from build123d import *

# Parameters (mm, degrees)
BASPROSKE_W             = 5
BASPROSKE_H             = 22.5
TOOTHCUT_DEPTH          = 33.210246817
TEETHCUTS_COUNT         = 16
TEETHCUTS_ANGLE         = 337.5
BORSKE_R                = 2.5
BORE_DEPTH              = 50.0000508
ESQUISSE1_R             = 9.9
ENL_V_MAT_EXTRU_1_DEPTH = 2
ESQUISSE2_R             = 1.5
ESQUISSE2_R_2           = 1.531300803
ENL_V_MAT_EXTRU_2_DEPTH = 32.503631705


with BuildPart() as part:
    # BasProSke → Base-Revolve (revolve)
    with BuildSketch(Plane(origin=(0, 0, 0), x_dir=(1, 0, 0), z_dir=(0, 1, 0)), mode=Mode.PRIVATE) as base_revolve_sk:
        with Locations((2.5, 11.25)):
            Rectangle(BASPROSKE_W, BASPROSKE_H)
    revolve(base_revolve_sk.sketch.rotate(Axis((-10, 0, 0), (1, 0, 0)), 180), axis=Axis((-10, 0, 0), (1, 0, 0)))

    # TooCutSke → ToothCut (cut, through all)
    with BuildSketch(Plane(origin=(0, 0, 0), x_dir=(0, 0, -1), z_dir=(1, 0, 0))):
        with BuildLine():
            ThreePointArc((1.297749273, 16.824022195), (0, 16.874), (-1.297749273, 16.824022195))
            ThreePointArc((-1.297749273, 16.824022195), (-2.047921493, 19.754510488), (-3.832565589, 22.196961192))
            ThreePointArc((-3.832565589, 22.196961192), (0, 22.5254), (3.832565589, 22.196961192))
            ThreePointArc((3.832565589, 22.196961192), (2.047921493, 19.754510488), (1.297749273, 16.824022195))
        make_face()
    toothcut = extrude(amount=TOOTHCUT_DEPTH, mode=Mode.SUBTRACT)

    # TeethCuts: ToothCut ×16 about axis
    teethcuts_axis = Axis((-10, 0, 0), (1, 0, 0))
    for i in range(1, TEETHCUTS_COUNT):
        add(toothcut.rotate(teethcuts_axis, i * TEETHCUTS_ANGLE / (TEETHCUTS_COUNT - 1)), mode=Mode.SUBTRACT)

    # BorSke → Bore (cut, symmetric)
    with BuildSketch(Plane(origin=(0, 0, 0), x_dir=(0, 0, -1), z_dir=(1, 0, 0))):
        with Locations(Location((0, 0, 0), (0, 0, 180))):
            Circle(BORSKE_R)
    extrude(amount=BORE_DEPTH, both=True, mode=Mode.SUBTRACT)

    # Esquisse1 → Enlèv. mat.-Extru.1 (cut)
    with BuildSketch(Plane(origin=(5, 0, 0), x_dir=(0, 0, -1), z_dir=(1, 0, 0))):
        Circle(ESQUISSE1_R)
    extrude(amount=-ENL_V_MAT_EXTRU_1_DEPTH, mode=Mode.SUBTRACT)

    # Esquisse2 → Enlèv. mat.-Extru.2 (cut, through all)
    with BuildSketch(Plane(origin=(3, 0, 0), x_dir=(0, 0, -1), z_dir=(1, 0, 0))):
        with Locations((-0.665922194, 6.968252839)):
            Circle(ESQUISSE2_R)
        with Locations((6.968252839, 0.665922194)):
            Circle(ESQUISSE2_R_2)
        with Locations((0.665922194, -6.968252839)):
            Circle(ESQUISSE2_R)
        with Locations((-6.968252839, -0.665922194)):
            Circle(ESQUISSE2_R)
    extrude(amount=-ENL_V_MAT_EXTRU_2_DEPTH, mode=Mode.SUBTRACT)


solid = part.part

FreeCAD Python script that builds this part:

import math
import FreeCAD as App
import Part
import Sketcher

V = App.Vector
Q = App.Units.Quantity

doc = App.newDocument("Part")
body = doc.addObject("PartDesign::Body", "Body")

# Sketch on XZ plane
sketch1 = body.newObject("Sketcher::SketchObject", "Sketch")
sketch1.AttachmentSupport = (doc.getObject("XZ_Plane"), [""])
sketch1.MapMode = "FlatFace"
sketch1.addGeometry(Part.LineSegment(V(0, -22.5, 0), V(0, 0, 0)), False)
sketch1.addGeometry(Part.LineSegment(V(0, 0, 0), V(5, 0, 0)), False)
sketch1.addGeometry(Part.LineSegment(V(5, 0, 0), V(5, -22.5, 0)), False)
sketch1.addGeometry(Part.LineSegment(V(5, -22.5, 0), V(0, -22.5, 0)), False)
sketch1.addConstraint(Sketcher.Constraint("Coincident", 0, 2, 1, 1))
sketch1.addConstraint(Sketcher.Constraint("Coincident", 1, 2, 2, 1))
sketch1.addConstraint(Sketcher.Constraint("Coincident", 2, 2, 3, 1))
sketch1.addConstraint(Sketcher.Constraint("Coincident", 3, 2, 0, 1))
sketch1.addConstraint(Sketcher.Constraint("Vertical", 0))
sketch1.addConstraint(Sketcher.Constraint("Horizontal", 1))
sketch1.addConstraint(Sketcher.Constraint("Vertical", 2))
sketch1.addConstraint(Sketcher.Constraint("Horizontal", 3))
sketch1.addConstraint(Sketcher.Constraint("Coincident", 0, 2, -1, 1))
sketch1.addConstraint(Sketcher.Constraint("DistanceX", 1, 1, 1, 2, Q("5 mm")))
sketch1.addConstraint(Sketcher.Constraint("DistanceY", 0, 1, 0, 2, Q("22.5 mm")))
revolution = body.newObject("PartDesign::Revolution", "Revolution")
revolution.Profile = sketch1
revolution.ReferenceAxis = (sketch1, ["H_Axis"])
revolution.Angle = 360

# Sketch on YZ plane
sketch2 = body.newObject("Sketcher::SketchObject", "Sketch001")
sketch2.AttachmentSupport = (doc.getObject("YZ_Plane"), [""])
sketch2.MapMode = "FlatFace"
sketch2.addGeometry(Part.ArcOfCircle(Part.Circle(V(0, 0, 0), V(0, 0, 1), 16.874), math.radians(-4.410872), math.radians(4.410872)), False)
sketch2.addGeometry(Part.ArcOfCircle(Part.Circle(V(16.341108, -9.283161, 0), V(0, 0, 1), 8), math.radians(42.947221), math.radians(86.53928)), False)
sketch2.addGeometry(Part.ArcOfCircle(Part.Circle(V(0, 0, 0), V(0, 0, 1), 22.5254), math.radians(-9.796202), math.radians(9.796202)), False)
sketch2.addGeometry(Part.ArcOfCircle(Part.Circle(V(16.341108, 9.283161, 0), V(0, 0, 1), 8), math.radians(-86.53928), math.radians(-42.947221)), False)
sketch2.addConstraint(Sketcher.Constraint("Coincident", 0, 1, 1, 2))
sketch2.addConstraint(Sketcher.Constraint("Coincident", 1, 1, 2, 1))
sketch2.addConstraint(Sketcher.Constraint("Coincident", 2, 2, 3, 2))
sketch2.addConstraint(Sketcher.Constraint("Coincident", 3, 1, 0, 2))
sketch2.addConstraint(Sketcher.Constraint("Coincident", 0, 3, -1, 1))
sketch2.addConstraint(Sketcher.Constraint("Coincident", 2, 3, -1, 1))
sketch2.addConstraint(Sketcher.Constraint("Equal", 1, 3))
sketch2.addConstraint(Sketcher.Constraint("Symmetric", 1, 3, 3, 3, -1))
sketch2.addConstraint(Sketcher.Constraint("Radius", 1, Q("8 mm")))
sketch2.addConstraint(Sketcher.Constraint("Radius", 0, Q("16.874 mm")))
sketch2.addConstraint(Sketcher.Constraint("Radius", 2, Q("22.5254 mm")))
sketch2.addConstraint(Sketcher.Constraint("DistanceY", 0, 1, 3, 1, Q("2.595499 mm")))
sketch2.addConstraint(Sketcher.Constraint("DistanceX", -1, 1, 1, 3, Q("16.341108 mm")))
pocket1 = body.newObject("PartDesign::Pocket", "Pocket")
pocket1.Profile = sketch2
pocket1.Type = "ThroughAll"
pocket1.Reversed = True
doc.recompute()

polarpattern = body.newObject("PartDesign::PolarPattern", "PolarPattern")
polarpattern.Originals = [pocket1]
polarpattern.Axis = (doc.getObject("X_Axis"), [""])
polarpattern.Angle = 360
polarpattern.Occurrences = 16
body.Tip = polarpattern

# Sketch on YZ plane
sketch3 = body.newObject("Sketcher::SketchObject", "Sketch002")
sketch3.AttachmentSupport = (doc.getObject("YZ_Plane"), [""])
sketch3.MapMode = "FlatFace"
sketch3.addGeometry(Part.Circle(V(0, 0, 0), V(0, 0, 1), 2.5), False)
sketch3.addConstraint(Sketcher.Constraint("Coincident", 0, 3, -1, 1))
sketch3.addConstraint(Sketcher.Constraint("Diameter", 0, Q("5 mm")))
pocket2 = body.newObject("PartDesign::Pocket", "Pocket001")
pocket2.Profile = sketch3
pocket2.Length = 100.000102
pocket2.Midplane = True

# Sketch on YZ plane
sketch4 = body.newObject("Sketcher::SketchObject", "Sketch003")
sketch4.AttachmentSupport = (doc.getObject("YZ_Plane"), [""])
sketch4.MapMode = "FlatFace"
sketch4.AttachmentOffset = App.Placement(V(0, 0, 5), App.Rotation())
sketch4.addGeometry(Part.Circle(V(0, 0, 0), V(0, 0, 1), 9.9), False)
sketch4.addConstraint(Sketcher.Constraint("Coincident", 0, 3, -1, 1))
sketch4.addConstraint(Sketcher.Constraint("Diameter", 0, Q("19.8 mm")))
pocket3 = body.newObject("PartDesign::Pocket", "Pocket002")
pocket3.Profile = sketch4
pocket3.Length = 2

# Sketch on YZ plane
sketch5 = body.newObject("Sketcher::SketchObject", "Sketch004")
sketch5.AttachmentSupport = (doc.getObject("YZ_Plane"), [""])
sketch5.MapMode = "FlatFace"
sketch5.AttachmentOffset = App.Placement(V(0, 0, 3), App.Rotation())
sketch5.addGeometry(Part.Circle(V(6.968253, 0.665922, 0), V(0, 0, 1), 1.5), False)
sketch5.addGeometry(Part.Circle(V(0.665922, -6.968253, 0), V(0, 0, 1), 1.531301), False)
sketch5.addGeometry(Part.Circle(V(-6.968253, -0.665922, 0), V(0, 0, 1), 1.5), False)
sketch5.addGeometry(Part.Circle(V(-0.665922, 6.968253, 0), V(0, 0, 1), 1.5), False)
sketch5.addConstraint(Sketcher.Constraint("Equal", 0, 2))
sketch5.addConstraint(Sketcher.Constraint("Equal", 2, 3))
sketch5.addConstraint(Sketcher.Constraint("Symmetric", 0, 3, 2, 3, -1, 1))
sketch5.addConstraint(Sketcher.Constraint("Symmetric", 1, 3, 3, 3, -1, 1))
sketch5.addConstraint(Sketcher.Constraint("Diameter", 0, Q("3 mm")))
sketch5.addConstraint(Sketcher.Constraint("Diameter", 1, Q("3.062602 mm")))
sketch5.addConstraint(Sketcher.Constraint("DistanceX", 1, 3, 0, 3, Q("6.302331 mm")))
sketch5.addConstraint(Sketcher.Constraint("DistanceY", 1, 3, 2, 3, Q("6.302331 mm")))
sketch5.addConstraint(Sketcher.Constraint("DistanceX", -1, 1, 0, 3, Q("6.968253 mm")))
sketch5.addConstraint(Sketcher.Constraint("DistanceY", -1, 1, 0, 3, Q("0.665922 mm")))
pocket4 = body.newObject("PartDesign::Pocket", "Pocket003")
pocket4.Profile = sketch5
pocket4.Type = "ThroughAll"

doc.recompute()
